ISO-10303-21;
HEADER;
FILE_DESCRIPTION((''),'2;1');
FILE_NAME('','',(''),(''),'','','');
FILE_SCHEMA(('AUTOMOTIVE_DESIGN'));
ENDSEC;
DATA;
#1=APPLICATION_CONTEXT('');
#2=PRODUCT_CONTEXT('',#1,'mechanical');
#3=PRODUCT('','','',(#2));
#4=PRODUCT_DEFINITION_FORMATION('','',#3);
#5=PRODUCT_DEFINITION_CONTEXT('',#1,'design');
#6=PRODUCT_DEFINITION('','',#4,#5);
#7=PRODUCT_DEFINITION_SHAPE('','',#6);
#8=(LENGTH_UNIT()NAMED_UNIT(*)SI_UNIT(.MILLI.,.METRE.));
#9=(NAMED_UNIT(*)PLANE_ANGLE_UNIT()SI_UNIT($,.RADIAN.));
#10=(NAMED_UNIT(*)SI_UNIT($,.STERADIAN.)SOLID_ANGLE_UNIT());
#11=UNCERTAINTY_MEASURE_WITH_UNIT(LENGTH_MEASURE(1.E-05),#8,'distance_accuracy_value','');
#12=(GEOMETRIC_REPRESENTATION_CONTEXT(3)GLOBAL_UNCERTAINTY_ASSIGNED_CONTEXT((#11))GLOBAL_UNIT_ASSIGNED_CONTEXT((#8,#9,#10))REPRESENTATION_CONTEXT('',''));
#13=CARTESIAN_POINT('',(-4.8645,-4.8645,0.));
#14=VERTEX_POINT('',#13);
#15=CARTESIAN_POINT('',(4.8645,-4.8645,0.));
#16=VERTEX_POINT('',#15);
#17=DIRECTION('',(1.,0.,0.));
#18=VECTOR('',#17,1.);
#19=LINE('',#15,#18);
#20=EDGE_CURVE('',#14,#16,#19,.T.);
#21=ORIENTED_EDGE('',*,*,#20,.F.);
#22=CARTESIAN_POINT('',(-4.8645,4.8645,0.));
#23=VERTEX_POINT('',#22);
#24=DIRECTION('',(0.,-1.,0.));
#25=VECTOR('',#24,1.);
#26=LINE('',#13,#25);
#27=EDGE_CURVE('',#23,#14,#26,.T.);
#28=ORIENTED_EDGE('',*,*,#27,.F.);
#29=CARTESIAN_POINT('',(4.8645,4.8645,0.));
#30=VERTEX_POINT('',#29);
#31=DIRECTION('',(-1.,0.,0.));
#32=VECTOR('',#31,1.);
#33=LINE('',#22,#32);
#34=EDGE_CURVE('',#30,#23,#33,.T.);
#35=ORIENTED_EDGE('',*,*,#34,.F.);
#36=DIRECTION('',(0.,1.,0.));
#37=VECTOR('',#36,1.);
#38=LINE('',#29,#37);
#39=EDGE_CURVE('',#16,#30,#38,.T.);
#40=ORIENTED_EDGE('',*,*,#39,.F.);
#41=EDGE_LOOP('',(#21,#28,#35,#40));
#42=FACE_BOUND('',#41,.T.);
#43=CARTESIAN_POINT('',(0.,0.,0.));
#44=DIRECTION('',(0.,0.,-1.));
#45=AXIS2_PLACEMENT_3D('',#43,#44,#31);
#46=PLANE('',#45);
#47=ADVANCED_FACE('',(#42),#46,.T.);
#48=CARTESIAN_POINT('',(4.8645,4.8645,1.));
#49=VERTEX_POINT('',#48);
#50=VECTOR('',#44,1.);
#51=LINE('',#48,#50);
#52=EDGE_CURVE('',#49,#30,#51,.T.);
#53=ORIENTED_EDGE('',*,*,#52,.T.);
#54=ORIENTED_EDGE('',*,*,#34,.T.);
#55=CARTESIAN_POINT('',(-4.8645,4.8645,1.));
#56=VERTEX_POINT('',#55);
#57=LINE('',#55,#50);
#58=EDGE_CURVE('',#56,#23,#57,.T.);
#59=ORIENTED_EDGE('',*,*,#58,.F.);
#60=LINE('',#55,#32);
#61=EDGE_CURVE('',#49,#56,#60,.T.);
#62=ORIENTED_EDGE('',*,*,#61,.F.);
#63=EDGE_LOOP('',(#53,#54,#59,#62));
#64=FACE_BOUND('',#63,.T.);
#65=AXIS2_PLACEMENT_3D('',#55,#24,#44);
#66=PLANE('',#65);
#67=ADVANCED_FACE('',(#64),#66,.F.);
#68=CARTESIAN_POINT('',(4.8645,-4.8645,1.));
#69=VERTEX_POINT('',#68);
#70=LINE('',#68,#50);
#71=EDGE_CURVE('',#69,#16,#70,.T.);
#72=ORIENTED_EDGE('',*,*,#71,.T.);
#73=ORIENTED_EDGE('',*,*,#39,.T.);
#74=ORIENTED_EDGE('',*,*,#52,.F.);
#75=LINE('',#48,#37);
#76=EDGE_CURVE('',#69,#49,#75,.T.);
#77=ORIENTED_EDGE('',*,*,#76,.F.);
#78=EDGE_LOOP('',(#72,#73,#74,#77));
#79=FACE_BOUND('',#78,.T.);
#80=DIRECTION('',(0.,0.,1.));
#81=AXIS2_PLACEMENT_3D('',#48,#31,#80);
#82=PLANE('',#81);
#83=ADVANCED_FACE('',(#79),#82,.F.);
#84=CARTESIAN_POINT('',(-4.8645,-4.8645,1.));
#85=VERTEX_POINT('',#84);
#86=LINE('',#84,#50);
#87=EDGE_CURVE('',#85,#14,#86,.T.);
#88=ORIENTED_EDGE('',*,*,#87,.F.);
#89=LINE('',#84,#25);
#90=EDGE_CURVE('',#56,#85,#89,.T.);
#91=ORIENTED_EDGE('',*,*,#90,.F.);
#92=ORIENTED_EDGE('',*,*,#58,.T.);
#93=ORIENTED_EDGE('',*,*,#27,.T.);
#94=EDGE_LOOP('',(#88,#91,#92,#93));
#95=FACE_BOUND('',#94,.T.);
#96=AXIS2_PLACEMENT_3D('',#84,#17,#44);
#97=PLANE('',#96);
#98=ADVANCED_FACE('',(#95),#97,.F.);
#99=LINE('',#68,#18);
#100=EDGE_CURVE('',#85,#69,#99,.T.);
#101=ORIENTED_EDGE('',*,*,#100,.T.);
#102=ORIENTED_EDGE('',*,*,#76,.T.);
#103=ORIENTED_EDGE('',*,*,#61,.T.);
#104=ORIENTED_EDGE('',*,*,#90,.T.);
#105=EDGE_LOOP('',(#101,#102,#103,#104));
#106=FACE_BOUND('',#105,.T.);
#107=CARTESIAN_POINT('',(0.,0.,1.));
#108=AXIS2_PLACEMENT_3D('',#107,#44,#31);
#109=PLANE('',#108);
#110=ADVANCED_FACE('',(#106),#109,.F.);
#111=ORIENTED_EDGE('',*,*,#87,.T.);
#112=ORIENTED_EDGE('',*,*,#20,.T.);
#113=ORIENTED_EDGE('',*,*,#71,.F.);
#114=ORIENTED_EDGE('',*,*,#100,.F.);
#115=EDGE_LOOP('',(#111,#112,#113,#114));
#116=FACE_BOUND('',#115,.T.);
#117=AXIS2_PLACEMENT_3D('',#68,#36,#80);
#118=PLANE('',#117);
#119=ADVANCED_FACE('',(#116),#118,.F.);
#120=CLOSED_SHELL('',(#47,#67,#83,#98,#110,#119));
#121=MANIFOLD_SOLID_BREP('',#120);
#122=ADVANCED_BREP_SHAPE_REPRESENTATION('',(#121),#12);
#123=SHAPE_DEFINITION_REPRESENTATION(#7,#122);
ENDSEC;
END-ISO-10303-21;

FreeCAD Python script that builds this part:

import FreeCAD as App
import Part
import Sketcher

V = App.Vector
Q = App.Units.Quantity


def add_polygon(sketch, points):
    """Adds a closed chain of lines whose ends are joined by coincident constraints."""
    first, n = sketch.GeometryCount, len(points)
    for a, b in zip(points, points[1:] + points[:1]):
        sketch.addGeometry(Part.LineSegment(App.Vector(*a, 0), App.Vector(*b, 0)), False)
    for i in range(n):
        sketch.addConstraint(Sketcher.Constraint("Coincident", first + i, 2, first + (i + 1) % n, 1))

doc = App.newDocument("Part")
body = doc.addObject("PartDesign::Body", "Body")

# Sketch on XY plane
sketch1 = doc.addObject("Sketcher::SketchObject", "Sketch")
body.addObject(sketch1)
sketch1.AttachmentSupport = (doc.XY_Plane, [""])
sketch1.MapMode = "FlatFace"
add_polygon(sketch1, [(-5, 5), (-5, -5), (5, -5), (5, 5)])  # lines 0-3
sketch1.addConstraint(Sketcher.Constraint("Vertical", 0))
sketch1.addConstraint(Sketcher.Constraint("Horizontal", 1))
sketch1.addConstraint(Sketcher.Constraint("Vertical", 2))
sketch1.addConstraint(Sketcher.Constraint("Horizontal", 3))
sketch1.addConstraint(Sketcher.Constraint("Symmetric", 0, 2, 2, 2, -1, 1))
sketch1.addConstraint(Sketcher.Constraint("Equal", 3, 0))
sketch1.addConstraint(Sketcher.Constraint("DistanceX", 1, 1, 1, 2, Q("9.729 mm")))
pad1 = doc.addObject("PartDesign::Pad", "Pad")
body.addObject(pad1)
pad1.Profile = sketch1
pad1.Length = 1

doc.recompute()
